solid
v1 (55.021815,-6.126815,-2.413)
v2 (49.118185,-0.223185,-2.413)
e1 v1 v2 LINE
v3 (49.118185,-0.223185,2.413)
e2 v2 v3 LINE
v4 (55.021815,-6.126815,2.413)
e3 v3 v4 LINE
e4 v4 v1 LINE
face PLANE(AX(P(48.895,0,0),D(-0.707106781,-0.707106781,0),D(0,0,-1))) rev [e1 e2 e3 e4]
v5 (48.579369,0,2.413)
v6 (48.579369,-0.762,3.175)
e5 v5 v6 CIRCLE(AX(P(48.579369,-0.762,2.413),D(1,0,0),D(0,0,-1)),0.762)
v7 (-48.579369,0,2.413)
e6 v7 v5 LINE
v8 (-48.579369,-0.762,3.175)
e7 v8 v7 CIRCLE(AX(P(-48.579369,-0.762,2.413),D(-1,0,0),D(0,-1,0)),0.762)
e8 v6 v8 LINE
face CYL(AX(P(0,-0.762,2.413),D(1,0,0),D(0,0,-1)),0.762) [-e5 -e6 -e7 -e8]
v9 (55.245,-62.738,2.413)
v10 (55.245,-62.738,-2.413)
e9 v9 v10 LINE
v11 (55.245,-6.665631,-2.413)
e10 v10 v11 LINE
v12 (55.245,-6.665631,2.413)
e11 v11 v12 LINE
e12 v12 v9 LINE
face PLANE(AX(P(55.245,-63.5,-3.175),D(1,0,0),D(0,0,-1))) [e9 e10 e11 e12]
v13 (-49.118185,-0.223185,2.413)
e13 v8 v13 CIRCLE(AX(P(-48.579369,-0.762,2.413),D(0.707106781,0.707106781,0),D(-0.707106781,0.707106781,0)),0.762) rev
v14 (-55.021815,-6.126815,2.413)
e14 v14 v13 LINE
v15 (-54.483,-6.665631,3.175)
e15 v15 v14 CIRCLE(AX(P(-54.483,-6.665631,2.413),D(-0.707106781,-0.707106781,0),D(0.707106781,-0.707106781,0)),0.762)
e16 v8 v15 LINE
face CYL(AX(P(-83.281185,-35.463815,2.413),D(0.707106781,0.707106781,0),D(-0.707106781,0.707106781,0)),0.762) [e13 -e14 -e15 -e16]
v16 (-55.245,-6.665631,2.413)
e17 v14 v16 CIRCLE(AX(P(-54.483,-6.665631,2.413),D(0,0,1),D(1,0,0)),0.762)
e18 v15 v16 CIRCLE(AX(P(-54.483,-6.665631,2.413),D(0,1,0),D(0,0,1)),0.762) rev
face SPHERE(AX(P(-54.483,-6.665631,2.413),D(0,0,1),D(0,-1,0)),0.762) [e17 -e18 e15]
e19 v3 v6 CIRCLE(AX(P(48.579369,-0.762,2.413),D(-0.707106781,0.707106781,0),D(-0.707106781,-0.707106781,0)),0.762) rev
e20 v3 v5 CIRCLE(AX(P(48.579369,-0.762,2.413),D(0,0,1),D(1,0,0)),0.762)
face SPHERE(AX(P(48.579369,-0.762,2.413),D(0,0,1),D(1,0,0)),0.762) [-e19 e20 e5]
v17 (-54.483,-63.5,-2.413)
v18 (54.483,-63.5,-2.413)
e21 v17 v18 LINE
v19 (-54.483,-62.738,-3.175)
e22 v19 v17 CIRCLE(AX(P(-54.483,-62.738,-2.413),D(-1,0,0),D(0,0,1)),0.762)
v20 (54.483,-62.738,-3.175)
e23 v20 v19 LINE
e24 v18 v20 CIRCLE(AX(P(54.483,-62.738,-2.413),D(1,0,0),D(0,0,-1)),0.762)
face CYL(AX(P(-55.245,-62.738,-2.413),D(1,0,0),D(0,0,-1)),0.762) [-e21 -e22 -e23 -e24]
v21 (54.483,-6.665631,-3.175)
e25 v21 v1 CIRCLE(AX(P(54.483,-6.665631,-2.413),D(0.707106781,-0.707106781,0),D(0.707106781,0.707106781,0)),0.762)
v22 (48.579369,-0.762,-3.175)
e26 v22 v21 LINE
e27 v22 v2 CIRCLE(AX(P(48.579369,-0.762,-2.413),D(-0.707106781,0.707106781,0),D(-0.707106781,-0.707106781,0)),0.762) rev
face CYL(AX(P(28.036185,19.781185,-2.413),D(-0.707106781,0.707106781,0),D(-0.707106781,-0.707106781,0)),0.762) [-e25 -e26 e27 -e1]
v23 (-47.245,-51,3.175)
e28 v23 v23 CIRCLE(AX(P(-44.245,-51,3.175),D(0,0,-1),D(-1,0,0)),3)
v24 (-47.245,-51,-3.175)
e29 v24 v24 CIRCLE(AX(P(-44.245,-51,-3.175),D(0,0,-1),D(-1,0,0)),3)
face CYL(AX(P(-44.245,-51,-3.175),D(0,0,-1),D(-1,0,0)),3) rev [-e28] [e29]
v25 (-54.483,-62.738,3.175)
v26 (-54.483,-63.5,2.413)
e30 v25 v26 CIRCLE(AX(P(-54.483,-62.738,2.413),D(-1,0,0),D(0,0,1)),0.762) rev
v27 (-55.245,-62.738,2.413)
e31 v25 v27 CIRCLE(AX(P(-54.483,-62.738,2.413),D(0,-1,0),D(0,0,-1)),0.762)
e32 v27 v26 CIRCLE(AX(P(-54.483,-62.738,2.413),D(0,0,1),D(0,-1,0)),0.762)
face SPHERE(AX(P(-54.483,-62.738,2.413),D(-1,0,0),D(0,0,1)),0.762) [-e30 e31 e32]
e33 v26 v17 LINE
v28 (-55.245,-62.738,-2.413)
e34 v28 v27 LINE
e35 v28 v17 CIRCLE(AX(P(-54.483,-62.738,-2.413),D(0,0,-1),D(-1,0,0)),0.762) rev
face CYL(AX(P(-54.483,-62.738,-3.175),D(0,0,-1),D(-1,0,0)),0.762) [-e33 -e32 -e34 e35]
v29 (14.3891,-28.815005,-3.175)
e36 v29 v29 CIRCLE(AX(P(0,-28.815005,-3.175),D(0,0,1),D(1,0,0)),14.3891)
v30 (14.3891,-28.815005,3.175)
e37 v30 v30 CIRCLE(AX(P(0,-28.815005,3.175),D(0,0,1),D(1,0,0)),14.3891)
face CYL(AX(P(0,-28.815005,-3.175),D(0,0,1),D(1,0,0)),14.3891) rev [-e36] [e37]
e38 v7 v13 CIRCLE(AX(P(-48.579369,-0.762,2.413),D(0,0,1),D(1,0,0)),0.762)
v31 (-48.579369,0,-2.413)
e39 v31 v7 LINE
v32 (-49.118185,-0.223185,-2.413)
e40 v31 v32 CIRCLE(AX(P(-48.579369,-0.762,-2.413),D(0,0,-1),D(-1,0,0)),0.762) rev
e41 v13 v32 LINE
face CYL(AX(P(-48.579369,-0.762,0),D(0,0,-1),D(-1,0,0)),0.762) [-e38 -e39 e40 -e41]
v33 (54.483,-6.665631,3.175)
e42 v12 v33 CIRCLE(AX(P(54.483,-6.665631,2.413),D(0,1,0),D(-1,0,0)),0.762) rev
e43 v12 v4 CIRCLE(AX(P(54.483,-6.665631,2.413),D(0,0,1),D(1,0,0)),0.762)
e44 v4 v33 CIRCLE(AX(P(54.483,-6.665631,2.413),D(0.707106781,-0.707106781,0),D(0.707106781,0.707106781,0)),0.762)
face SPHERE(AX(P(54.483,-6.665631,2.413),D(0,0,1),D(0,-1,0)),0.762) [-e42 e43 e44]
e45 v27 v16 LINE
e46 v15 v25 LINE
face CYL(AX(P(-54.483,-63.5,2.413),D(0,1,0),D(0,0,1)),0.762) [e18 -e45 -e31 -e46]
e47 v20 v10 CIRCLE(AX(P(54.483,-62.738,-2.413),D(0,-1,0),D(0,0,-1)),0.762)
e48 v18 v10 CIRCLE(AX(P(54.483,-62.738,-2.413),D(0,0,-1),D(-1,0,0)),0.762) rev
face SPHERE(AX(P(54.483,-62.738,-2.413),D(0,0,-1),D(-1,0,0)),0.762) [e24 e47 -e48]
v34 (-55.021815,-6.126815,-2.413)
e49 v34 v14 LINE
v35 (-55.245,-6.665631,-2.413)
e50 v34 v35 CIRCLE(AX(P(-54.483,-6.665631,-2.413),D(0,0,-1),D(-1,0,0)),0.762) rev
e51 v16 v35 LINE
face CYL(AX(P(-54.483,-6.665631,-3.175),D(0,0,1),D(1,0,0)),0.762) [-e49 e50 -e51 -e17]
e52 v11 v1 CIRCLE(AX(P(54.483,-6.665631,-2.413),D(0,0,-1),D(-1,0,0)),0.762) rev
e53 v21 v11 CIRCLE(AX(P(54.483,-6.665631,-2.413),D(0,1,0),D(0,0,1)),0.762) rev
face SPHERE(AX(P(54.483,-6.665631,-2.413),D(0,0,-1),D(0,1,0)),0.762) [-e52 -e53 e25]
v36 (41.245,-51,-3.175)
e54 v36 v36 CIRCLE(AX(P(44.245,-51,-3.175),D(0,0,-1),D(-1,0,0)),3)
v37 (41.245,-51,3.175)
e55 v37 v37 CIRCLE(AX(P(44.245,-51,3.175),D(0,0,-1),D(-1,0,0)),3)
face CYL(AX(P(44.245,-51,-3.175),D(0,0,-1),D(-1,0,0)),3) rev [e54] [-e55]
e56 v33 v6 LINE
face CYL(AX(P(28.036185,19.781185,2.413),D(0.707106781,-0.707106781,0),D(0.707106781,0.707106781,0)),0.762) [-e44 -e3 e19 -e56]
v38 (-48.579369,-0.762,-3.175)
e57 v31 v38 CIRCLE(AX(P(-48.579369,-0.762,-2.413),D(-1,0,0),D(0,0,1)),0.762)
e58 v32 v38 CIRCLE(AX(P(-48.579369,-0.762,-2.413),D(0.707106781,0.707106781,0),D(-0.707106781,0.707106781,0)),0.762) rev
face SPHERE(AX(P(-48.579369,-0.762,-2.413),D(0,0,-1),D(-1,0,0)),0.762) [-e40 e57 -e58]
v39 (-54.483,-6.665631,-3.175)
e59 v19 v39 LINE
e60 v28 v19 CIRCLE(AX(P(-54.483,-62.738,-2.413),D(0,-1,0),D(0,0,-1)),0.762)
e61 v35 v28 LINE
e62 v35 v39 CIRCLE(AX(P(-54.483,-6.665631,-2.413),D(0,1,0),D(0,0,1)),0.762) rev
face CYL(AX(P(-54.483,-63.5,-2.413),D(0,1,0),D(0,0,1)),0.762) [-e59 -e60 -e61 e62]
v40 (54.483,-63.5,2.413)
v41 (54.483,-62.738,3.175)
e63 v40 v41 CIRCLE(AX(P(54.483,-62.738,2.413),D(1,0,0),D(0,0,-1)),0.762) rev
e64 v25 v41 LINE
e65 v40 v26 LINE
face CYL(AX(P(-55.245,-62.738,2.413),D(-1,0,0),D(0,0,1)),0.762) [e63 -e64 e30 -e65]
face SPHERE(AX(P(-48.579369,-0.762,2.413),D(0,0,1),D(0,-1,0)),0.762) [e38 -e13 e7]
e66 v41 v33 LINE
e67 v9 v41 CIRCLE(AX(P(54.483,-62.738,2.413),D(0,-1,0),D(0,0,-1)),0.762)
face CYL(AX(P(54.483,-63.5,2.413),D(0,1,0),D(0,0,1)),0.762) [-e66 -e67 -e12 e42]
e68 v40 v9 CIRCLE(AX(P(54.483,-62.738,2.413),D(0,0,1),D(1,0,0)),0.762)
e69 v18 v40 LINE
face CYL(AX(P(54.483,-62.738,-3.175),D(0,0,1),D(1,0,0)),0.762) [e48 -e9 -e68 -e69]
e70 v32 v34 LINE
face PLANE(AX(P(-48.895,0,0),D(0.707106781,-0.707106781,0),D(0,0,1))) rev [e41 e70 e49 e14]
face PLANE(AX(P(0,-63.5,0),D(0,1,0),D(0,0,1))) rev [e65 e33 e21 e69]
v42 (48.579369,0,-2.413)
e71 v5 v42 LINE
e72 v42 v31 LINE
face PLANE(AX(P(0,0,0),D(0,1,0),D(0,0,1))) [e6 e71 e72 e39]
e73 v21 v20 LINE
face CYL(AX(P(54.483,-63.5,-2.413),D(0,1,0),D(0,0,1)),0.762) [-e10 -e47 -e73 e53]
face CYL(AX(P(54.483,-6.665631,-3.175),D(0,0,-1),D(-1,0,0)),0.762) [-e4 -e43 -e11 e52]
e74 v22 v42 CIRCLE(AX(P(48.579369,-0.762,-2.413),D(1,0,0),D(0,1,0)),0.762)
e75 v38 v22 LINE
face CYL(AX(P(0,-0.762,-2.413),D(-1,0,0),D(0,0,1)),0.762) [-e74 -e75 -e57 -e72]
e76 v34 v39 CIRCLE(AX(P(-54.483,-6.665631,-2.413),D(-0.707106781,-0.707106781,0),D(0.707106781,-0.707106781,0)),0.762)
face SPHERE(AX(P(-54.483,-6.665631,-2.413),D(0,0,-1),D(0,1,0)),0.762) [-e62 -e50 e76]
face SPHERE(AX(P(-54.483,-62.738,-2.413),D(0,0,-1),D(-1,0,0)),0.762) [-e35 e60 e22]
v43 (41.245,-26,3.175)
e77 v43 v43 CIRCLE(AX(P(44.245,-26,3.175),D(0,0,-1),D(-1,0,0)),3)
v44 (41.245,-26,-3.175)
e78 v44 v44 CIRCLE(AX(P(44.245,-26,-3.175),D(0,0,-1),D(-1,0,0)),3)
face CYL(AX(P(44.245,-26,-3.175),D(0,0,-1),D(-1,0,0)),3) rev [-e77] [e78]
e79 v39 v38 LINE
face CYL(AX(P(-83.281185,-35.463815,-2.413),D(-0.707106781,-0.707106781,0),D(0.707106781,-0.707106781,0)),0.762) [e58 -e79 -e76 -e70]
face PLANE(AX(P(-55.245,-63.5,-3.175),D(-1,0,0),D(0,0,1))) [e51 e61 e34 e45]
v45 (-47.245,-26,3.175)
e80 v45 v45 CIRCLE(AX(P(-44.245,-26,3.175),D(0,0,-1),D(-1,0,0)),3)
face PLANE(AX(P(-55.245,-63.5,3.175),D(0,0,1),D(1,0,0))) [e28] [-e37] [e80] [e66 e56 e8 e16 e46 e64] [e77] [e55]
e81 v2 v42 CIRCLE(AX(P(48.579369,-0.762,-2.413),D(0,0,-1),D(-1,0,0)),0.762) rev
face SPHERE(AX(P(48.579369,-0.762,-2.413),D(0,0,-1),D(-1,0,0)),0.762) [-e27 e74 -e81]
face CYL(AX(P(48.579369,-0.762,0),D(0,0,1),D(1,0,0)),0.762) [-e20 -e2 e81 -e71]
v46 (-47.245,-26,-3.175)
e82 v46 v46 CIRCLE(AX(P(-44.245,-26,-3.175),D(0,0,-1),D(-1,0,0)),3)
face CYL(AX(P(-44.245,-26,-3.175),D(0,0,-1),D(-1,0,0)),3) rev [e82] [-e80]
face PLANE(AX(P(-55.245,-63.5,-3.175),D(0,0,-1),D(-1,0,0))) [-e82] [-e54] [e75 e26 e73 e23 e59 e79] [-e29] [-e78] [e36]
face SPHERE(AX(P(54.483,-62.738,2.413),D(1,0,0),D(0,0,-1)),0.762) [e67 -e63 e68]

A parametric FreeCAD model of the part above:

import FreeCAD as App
import Part
import Sketcher
from FreeCAD import Vector
Q = App.Units.Quantity


def edges_at(feature, points):
    """Names of the edges that pass closest to the given points."""
    edges = feature.Shape.Edges
    near = lambda p: min(range(len(edges)), key=lambda i: edges[i].distToShape(Part.Vertex(*p))[0])
    return sorted({f"Edge{near(p) + 1}" for p in points})


def add_polygon(sketch, points):
    """Adds a closed chain of lines whose ends are joined by coincident constraints."""
    first, n = sketch.GeometryCount, len(points)
    for a, b in zip(points, points[1:] + points[:1]):
        sketch.addGeometry(Part.LineSegment(App.Vector(*a, 0), App.Vector(*b, 0)), False)
    for i in range(n):
        sketch.addConstraint(Sketcher.Constraint("Coincident", first + i, 2, first + (i + 1) % n, 1))

doc = App.newDocument("Part")
body = doc.addObject("PartDesign::Body", "Body")

sketch1 = doc.addObject("Sketcher::SketchObject", "Sketch")
body.addObject(sketch1)
sketch1.AttachmentSupport = (doc.XZ_Plane, [""])
sketch1.MapMode = "FlatFace"
add_polygon(sketch1, [(-55.245, -3.175), (-55.245, 3.175), (55.245, 3.175), (55.245, -3.175)])
sketch1.addConstraint([
    Sketcher.Constraint("Vertical", 0),
    Sketcher.Constraint("Horizontal", 1),
    Sketcher.Constraint("Vertical", 2),
    Sketcher.Constraint("Horizontal", 3),
    Sketcher.Constraint("Symmetric", 0, 2, 2, 2, -1, 1),
    Sketcher.Constraint("DistanceX", 1, 1, 1, 2, Q("4.35 in")),
    Sketcher.Constraint("DistanceY", 0, 1, 0, 2, Q("0.25 in")),
])
pad1 = doc.addObject("PartDesign::Pad", "Pad")
body.addObject(pad1)
pad1.Profile = sketch1
pad1.Length = Q("2.5 in")

sketch2 = doc.addObject("Sketcher::SketchObject", "Sketch001")
body.addObject(sketch2)
sketch2.AttachmentSupport = (doc.XY_Plane, [""])
sketch2.MapMode = "FlatFace"
sketch2.AttachmentOffset = App.Placement(Vector(0, 0, 0.125 * 25.4), App.Rotation())
sketch2.addGeometry(Part.Circle(Vector(0, -28.815005, 0), Vector(0, 0, 1), 14.3891), False)
sketch2.addConstraint([
    Sketcher.Constraint("PointOnObject", 0, 3, -2),
    Sketcher.Constraint("Diameter", 0, Q("1.133 in")),
    Sketcher.Constraint("DistanceY", 0, 3, -1, 1, Q("28.815005 mm")),
])
pocket1 = doc.addObject("PartDesign::Pocket", "Pocket")
body.addObject(pocket1)
pocket1.Profile = sketch2
pocket1.Type = "ThroughAll"
doc.recompute()

chamfer = doc.addObject("PartDesign::Chamfer", "Chamfer")
body.addObject(chamfer)
chamfer.Base = (pocket1, edges_at(pocket1, [(55.245, 0, 0), (-55.245, 0, 0)]))
chamfer.Size = Q("0.25 in")

sketch3 = doc.addObject("Sketcher::SketchObject", "Sketch002")
body.addObject(sketch3)
sketch3.AttachmentSupport = (doc.XY_Plane, [""])
sketch3.MapMode = "FlatFace"
sketch3.AttachmentOffset = App.Placement(Vector(0, 0, -0.125 * 25.4), App.Rotation())
sketch3.addGeometry([
    Part.Circle(Vector(-44.245, -26, 0), Vector(0, 0, 1), 3),
    Part.Circle(Vector(-44.245, -51, 0), Vector(0, 0, 1), 3),
    Part.Circle(Vector(44.245, -51, 0), Vector(0, 0, 1), 3),
    Part.Circle(Vector(44.245, -26, 0), Vector(0, 0, 1), 3),
], False)
sketch3.addConstraint([
    Sketcher.Constraint("Equal", 0, 1),
    Sketcher.Constraint("Equal", 1, 2),
    Sketcher.Constraint("Equal", 2, 3),
    Sketcher.Constraint("Symmetric", 1, 3, 2, 3, -2),
    Sketcher.Constraint("Symmetric", 0, 3, 3, 3, -2),
    Sketcher.Constraint("Vertical", 0, 3, 1, 3),
    Sketcher.Constraint("Diameter", 0, Q("6 mm")),
    Sketcher.Constraint("DistanceX", 0, 3, -1, 1, Q("44.245 mm")),
    Sketcher.Constraint("DistanceY", 0, 3, -1, 1, Q("26 mm")),
    Sketcher.Constraint("DistanceY", 1, 3, -1, 1, Q("51 mm")),
])
doc.recompute()
hole = doc.addObject("PartDesign::Hole", "Hole")
body.addObject(hole)
hole.Profile = sketch3
hole.ThreadType = "None"
hole.Diameter = 6
hole.DepthType = "ThroughAll"
hole.Reversed = True
doc.recompute()

fillet = doc.addObject("PartDesign::Fillet", "Fillet")
body.addObject(fillet)
fillet.Base = (hole, edges_at(hole, [
    (55.245, -63.5, 0),
    (0, -63.5, -3.175),
    (0, 0, 3.175),
    (0, 0, -3.175),
    (48.895, 0, 0),
    (-48.895, 0, 0),
    (52.07, -3.175, 3.175),
    (-52.07, -3.175, 3.175),
    (-55.245, -6.35, 0),
    (52.07, -3.175, -3.175),
    (-52.07, -3.175, -3.175),
    (55.245, -6.35, 0),
    (-55.245, -63.5, 0),
    (-55.245, -34.925, -3.175),
    (55.245, -34.925, -3.175),
    (55.245, -34.925, 3.175),
    (-55.245, -34.925, 3.175),
    (0, -63.5, 3.175),
]))
fillet.Radius = Q("0.03 in")

doc.recompute()
